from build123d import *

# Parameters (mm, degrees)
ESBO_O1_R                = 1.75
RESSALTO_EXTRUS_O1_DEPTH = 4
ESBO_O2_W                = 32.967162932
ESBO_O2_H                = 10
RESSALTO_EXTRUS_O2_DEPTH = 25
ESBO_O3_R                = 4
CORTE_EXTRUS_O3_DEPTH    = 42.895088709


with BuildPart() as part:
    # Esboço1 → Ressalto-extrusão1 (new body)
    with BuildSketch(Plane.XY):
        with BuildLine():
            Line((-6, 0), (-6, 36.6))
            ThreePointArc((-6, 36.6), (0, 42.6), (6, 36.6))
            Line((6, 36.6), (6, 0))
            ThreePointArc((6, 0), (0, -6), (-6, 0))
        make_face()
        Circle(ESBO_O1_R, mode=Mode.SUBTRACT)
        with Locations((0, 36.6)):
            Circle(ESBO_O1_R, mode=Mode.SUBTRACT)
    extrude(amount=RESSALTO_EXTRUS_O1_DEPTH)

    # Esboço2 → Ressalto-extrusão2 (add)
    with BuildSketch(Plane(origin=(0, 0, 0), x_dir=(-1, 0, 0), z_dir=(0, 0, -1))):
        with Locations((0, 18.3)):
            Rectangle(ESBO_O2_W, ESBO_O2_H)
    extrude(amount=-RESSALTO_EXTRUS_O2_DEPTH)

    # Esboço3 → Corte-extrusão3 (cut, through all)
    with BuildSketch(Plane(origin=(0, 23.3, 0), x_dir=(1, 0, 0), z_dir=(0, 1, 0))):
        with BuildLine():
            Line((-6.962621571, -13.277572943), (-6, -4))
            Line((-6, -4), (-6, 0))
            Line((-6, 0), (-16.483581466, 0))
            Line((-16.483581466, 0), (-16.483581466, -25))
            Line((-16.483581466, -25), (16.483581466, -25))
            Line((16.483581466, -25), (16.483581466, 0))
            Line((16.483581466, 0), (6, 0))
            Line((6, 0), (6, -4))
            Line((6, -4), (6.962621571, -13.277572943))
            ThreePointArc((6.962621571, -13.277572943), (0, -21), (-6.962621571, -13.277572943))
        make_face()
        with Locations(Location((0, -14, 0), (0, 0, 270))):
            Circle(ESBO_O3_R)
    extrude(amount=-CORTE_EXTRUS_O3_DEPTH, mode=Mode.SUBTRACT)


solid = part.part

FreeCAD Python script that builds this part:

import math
import FreeCAD as App
import Part
import Sketcher

doc = App.newDocument("Part")
body = doc.addObject("PartDesign::Body", "Body")

# Sketch on XY plane
sketch1 = body.newObject("Sketcher::SketchObject", "Sketch")
sketch1.AttachmentSupport = (doc.getObject("XY_Plane"), [""])
sketch1.MapMode = "FlatFace"
sketch1.addGeometry([
    Part.LineSegment(App.Vector(-6, 36.6, 0), App.Vector(-6, 0, 0)),  # 0
    Part.ArcOfCircle(Part.Circle(App.Vector(0, 0, 0), App.Vector(0, 0, 1), 6), math.radians(180), math.radians(360)),  # 1
    Part.LineSegment(App.Vector(6, 0, 0), App.Vector(6, 36.6, 0)),  # 2
    Part.ArcOfCircle(Part.Circle(App.Vector(0, 36.6, 0), App.Vector(0, 0, 1), 6), math.radians(0), math.radians(180)),  # 3
    Part.Circle(App.Vector(0, 0, 0), App.Vector(0, 0, 1), 1.8),  # 4
    Part.Circle(App.Vector(0, 36.6, 0), App.Vector(0, 0, 1), 1.8),  # 5
], False)
sketch1.addConstraint([
    Sketcher.Constraint("Tangent", 0, 2, 1, 1),
    Sketcher.Constraint("Tangent", 1, 2, 2, 1),
    Sketcher.Constraint("Tangent", 2, 2, 3, 1),
    Sketcher.Constraint("Tangent", 3, 2, 0, 1),
    Sketcher.Constraint("Vertical", 0),
    Sketcher.Constraint("Vertical", 2),
    Sketcher.Constraint("Coincident", 1, 3, -1, 1),
    Sketcher.Constraint("Coincident", 4, 3, -1, 1),
    Sketcher.Constraint("Coincident", 5, 3, 3, 3),
    Sketcher.Constraint("Equal", 4, 5),
    Sketcher.Constraint("Radius", 1, 6.0),
    Sketcher.Constraint("Diameter", 4, 3.5),
    Sketcher.Constraint("DistanceY", 0, 2, 0, 1, 36.6),
])
pad1 = body.newObject("PartDesign::Pad", "Pad")
pad1.Profile = sketch1
pad1.Length = 4

# Sketch on XY plane
sketch2 = body.newObject("Sketcher::SketchObject", "Sketch001")
sketch2.AttachmentSupport = (doc.getObject("XY_Plane"), [""])
sketch2.MapMode = "FlatFace"
sketch2.addGeometry([
    Part.LineSegment(App.Vector(16, 23, 0), App.Vector(16, 13, 0)),
    Part.LineSegment(App.Vector(16, 13, 0), App.Vector(-16, 13, 0)),
    Part.LineSegment(App.Vector(-16, 13, 0), App.Vector(-16, 23, 0)),
    Part.LineSegment(App.Vector(-16, 23, 0), App.Vector(16, 23, 0)),
], False)
sketch2.addConstraint([
    Sketcher.Constraint("Coincident", 0, 2, 1, 1),
    Sketcher.Constraint("Coincident", 1, 2, 2, 1),
    Sketcher.Constraint("Coincident", 2, 2, 3, 1),
    Sketcher.Constraint("Coincident", 3, 2, 0, 1),
    Sketcher.Constraint("Vertical", 0),
    Sketcher.Constraint("Horizontal", 1),
    Sketcher.Constraint("Vertical", 2),
    Sketcher.Constraint("Horizontal", 3),
    Sketcher.Constraint("DistanceY", 0, 2, 0, 1, 10.0),
    Sketcher.Constraint("DistanceY", -1, 1, 0, 2, 13.3),
    Sketcher.Constraint("DistanceX", 1, 2, 1, 1, 32.967163),
    Sketcher.Constraint("DistanceX", -1, 1, 0, 2, 16.483581),
])
pad2 = body.newObject("PartDesign::Pad", "Pad001")
pad2.Profile = sketch2
pad2.Length = 25

# Sketch on XZ plane
sketch3 = body.newObject("Sketcher::SketchObject", "Sketch002")
sketch3.AttachmentSupport = (doc.getObject("XZ_Plane"), [""])
sketch3.MapMode = "FlatFace"
sketch3.AttachmentOffset = App.Placement(App.Vector(0, 0, -23.3), App.Rotation())
sketch3.addGeometry([
    Part.LineSegment(App.Vector(-7, 13.3, 0), App.Vector(-6, 4, 0)),  # 0
    Part.LineSegment(App.Vector(-6, 4, 0), App.Vector(-6, 0, 0)),  # 1
    Part.LineSegment(App.Vector(-6, 0, 0), App.Vector(-16.5, 0, 0)),  # 2
    Part.LineSegment(App.Vector(-16.5, 0, 0), App.Vector(-16.5, 25, 0)),  # 3
    Part.LineSegment(App.Vector(-16.5, 25, 0), App.Vector(16.5, 25, 0)),  # 4
    Part.LineSegment(App.Vector(16.5, 25, 0), App.Vector(16.5, 0, 0)),  # 5
    Part.LineSegment(App.Vector(16.5, 0, 0), App.Vector(6, 0, 0)),  # 6
    Part.LineSegment(App.Vector(6, 0, 0), App.Vector(6, 4, 0)),  # 7
    Part.LineSegment(App.Vector(6, 4, 0), App.Vector(7, 13.3, 0)),  # 8
    Part.ArcOfCircle(Part.Circle(App.Vector(0, 14, 0), App.Vector(0, 0, 1), 7), math.radians(-6), math.radians(186)),  # 9
    Part.Circle(App.Vector(0, 14, 0), App.Vector(0, 0, 1), 4),  # 10
], False)
sketch3.addConstraint([
    Sketcher.Constraint("Coincident", 0, 2, 1, 1),
    Sketcher.Constraint("Coincident", 1, 2, 2, 1),
    Sketcher.Constraint("Coincident", 2, 2, 3, 1),
    Sketcher.Constraint("Coincident", 3, 2, 4, 1),
    Sketcher.Constraint("Coincident", 4, 2, 5, 1),
    Sketcher.Constraint("Coincident", 5, 2, 6, 1),
    Sketcher.Constraint("Coincident", 6, 2, 7, 1),
    Sketcher.Constraint("Coincident", 7, 2, 8, 1),
    Sketcher.Constraint("Tangent", 8, 2, 9, 1),
    Sketcher.Constraint("Tangent", 9, 2, 0, 1),
    Sketcher.Constraint("Vertical", 1),
    Sketcher.Constraint("Horizontal", 2),
    Sketcher.Constraint("Vertical", 3),
    Sketcher.Constraint("Horizontal", 4),
    Sketcher.Constraint("Vertical", 5),
    Sketcher.Constraint("Horizontal", 6),
    Sketcher.Constraint("Vertical", 7),
    Sketcher.Constraint("Coincident", 10, 3, 9, 3),
    Sketcher.Constraint("Symmetric", 2, 2, 5, 2, -1, 1),
    Sketcher.Constraint("Symmetric", 1, 2, 6, 2, -2),
    Sketcher.Constraint("Symmetric", 8, 2, 9, 2, -2),
    Sketcher.Constraint("Diameter", 10, 8.0),
    Sketcher.Constraint("Radius", 9, 7.0),
    Sketcher.Constraint("DistanceY", 1, 2, 1, 1, 4.0),
    Sketcher.Constraint("DistanceY", 3, 1, 3, 2, 25.0),
    Sketcher.Constraint("DistanceY", -1, 1, 9, 3, 14.0),
    Sketcher.Constraint("DistanceX", 0, 2, -1, 1, 6.0),
    Sketcher.Constraint("DistanceX", 2, 2, 2, 1, 10.483581),
])
pocket1 = body.newObject("PartDesign::Pocket", "Pocket")
pocket1.Profile = sketch3
pocket1.Type = "ThroughAll"
pocket1.Reversed = True

doc.recompute()
